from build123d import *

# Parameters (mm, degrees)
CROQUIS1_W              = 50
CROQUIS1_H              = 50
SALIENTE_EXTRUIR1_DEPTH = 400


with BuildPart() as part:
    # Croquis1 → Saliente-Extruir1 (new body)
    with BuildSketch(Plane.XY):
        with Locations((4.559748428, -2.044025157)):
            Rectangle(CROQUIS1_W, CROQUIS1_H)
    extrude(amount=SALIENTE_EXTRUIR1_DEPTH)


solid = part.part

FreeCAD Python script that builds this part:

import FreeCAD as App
import Part
import Sketcher
Q = App.Units.Quantity

doc = App.newDocument("Part")
body = doc.addObject("PartDesign::Body", "Body")

# Sketch on XY plane
sketch1 = body.newObject("Sketcher::SketchObject", "Sketch")
sketch1.AttachmentSupport = (doc.getObject("XY_Plane"), [""])
sketch1.MapMode = "FlatFace"
sketch1.addGeometry([
    Part.LineSegment(App.Vector(-20, 23, 0), App.Vector(-20, -27, 0)),
    Part.LineSegment(App.Vector(-20, -27, 0), App.Vector(30, -27, 0)),
    Part.LineSegment(App.Vector(30, -27, 0), App.Vector(30, 23, 0)),
    Part.LineSegment(App.Vector(30, 23, 0), App.Vector(-20, 23, 0)),
], False)
sketch1.addConstraint([
    Sketcher.Constraint("Coincident", 0, 2, 1, 1),
    Sketcher.Constraint("Coincident", 1, 2, 2, 1),
    Sketcher.Constraint("Coincident", 2, 2, 3, 1),
    Sketcher.Constraint("Coincident", 3, 2, 0, 1),
    Sketcher.Constraint("Vertical", 0),
    Sketcher.Constraint("Horizontal", 1),
    Sketcher.Constraint("Vertical", 2),
    Sketcher.Constraint("Horizontal", 3),
    Sketcher.Constraint("Equal", 3, 0),
    Sketcher.Constraint("DistanceX", 1, 1, 1, 2, Q("50 mm")),
    Sketcher.Constraint("DistanceX", 0, 2, -1, 1, Q("20.440252 mm")),
    Sketcher.Constraint("DistanceY", 0, 2, -1, 1, Q("27.044025 mm")),
])
pad1 = body.newObject("PartDesign::Pad", "Pad")
pad1.Profile = sketch1
pad1.Length = 400

doc.recompute()
